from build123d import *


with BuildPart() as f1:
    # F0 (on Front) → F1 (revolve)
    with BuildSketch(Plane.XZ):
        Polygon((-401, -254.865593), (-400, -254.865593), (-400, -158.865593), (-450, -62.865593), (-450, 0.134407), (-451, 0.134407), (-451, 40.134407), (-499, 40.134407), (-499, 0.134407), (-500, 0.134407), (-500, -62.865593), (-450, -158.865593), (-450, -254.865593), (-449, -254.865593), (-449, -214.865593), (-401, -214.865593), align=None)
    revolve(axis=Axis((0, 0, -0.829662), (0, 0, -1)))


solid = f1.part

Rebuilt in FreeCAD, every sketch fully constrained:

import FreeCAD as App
import Part
import Sketcher

V = App.Vector
Q = App.Units.Quantity


def add_polygon(sketch, points):
    """Adds a closed chain of lines whose ends are joined by coincident constraints."""
    first, n = sketch.GeometryCount, len(points)
    for a, b in zip(points, points[1:] + points[:1]):
        sketch.addGeometry(Part.LineSegment(App.Vector(*a, 0), App.Vector(*b, 0)), False)
    for i in range(n):
        sketch.addConstraint(Sketcher.Constraint("Coincident", first + i, 2, first + (i + 1) % n, 1))

doc = App.newDocument("Part")
params = doc.addObject("Spreadsheet::Sheet", "Params")
for row, (alias, value) in enumerate([
    ("sketch1_width", "1 mm"),
    ("sketch1_width2", "48 mm"),
    ("sketch1_height", "96 mm"),
    ("sketch1_height2", "63 mm"),
    ("sketch1_height3", "40 mm"),
    ("revolution_angle", "360 deg"),
], start=1):
    params.set(f"A{row}", alias)
    params.set(f"B{row}", "=" + value)
    params.setAlias(f"B{row}", alias)

body = doc.addObject("PartDesign::Body", "Body")

# Sketch on XZ plane
sketch1 = body.newObject("Sketcher::SketchObject", "Sketch")
sketch1.AttachmentSupport = (doc.getObject("XZ_Plane"), [""])
sketch1.MapMode = "FlatFace"
add_polygon(sketch1, [(-401, -254.9), (-400, -254.9), (-400, -158.9), (-450, -62.9), (-450, 0.1), (-451, 0.1), (-451, 40.1), (-499, 40.1), (-499, 0.1), (-500, 0.1), (-500, -62.9), (-450, -158.9), (-450, -254.9), (-449, -254.9), (-449, -214.9), (-401, -214.9)])  # lines 0-15
sketch1.addConstraint(Sketcher.Constraint("Horizontal", 0))
sketch1.addConstraint(Sketcher.Constraint("Vertical", 1))
sketch1.addConstraint(Sketcher.Constraint("Vertical", 3))
sketch1.addConstraint(Sketcher.Constraint("Horizontal", 4))
sketch1.addConstraint(Sketcher.Constraint("Vertical", 5))
sketch1.addConstraint(Sketcher.Constraint("Horizontal", 6))
sketch1.addConstraint(Sketcher.Constraint("Vertical", 7))
sketch1.addConstraint(Sketcher.Constraint("Horizontal", 8))
sketch1.addConstraint(Sketcher.Constraint("Vertical", 9))
sketch1.addConstraint(Sketcher.Constraint("Vertical", 11))
sketch1.addConstraint(Sketcher.Constraint("Horizontal", 12))
sketch1.addConstraint(Sketcher.Constraint("Vertical", 13))
sketch1.addConstraint(Sketcher.Constraint("Horizontal", 14))
sketch1.addConstraint(Sketcher.Constraint("Vertical", 15))
sketch1.addConstraint(Sketcher.Constraint("Parallel", 2, 10))
sketch1.addConstraint(Sketcher.Constraint("Horizontal", 4, 2, 7, 2))
sketch1.addConstraint(Sketcher.Constraint("Horizontal", 2, 2, 9, 2))
sketch1.addConstraint(Sketcher.Constraint("Horizontal", 1, 2, 10, 2))
sketch1.addConstraint(Sketcher.Constraint("Horizontal", 0, 2, 11, 2))
sketch1.addConstraint(Sketcher.Constraint("Vertical", 3, 2, 10, 2))
sketch1.addConstraint(Sketcher.Constraint("Equal", 0, 4))
sketch1.addConstraint(Sketcher.Constraint("Equal", 4, 8))
sketch1.addConstraint(Sketcher.Constraint("Equal", 8, 12))
sketch1.addConstraint(Sketcher.Constraint("Equal", 7, 13))
sketch1.addConstraint(Sketcher.Constraint("DistanceX", 0, 1, 0, 2, Q("1 mm")))
sketch1.addConstraint(Sketcher.Constraint("DistanceX", 6, 2, 6, 1, Q("48 mm")))
sketch1.addConstraint(Sketcher.Constraint("DistanceY", 1, 1, 1, 2, Q("96 mm")))
sketch1.addConstraint(Sketcher.Constraint("DistanceY", 3, 1, 3, 2, Q("63 mm")))
sketch1.addConstraint(Sketcher.Constraint("DistanceY", 5, 1, 5, 2, Q("40 mm")))
sketch1.addConstraint(Sketcher.Constraint("DistanceX", 0, 2, -1, 1, Q("400 mm")))
sketch1.addConstraint(Sketcher.Constraint("DistanceY", 1, 2, 2, 2, Q("96 mm")))
sketch1.addConstraint(Sketcher.Constraint("DistanceY", 0, 2, -1, 1, Q("254.865593 mm")))
sketch1.setExpression("Constraints[40]", "Params.sketch1_width")
sketch1.setExpression("Constraints[41]", "Params.sketch1_width2")
sketch1.setExpression("Constraints[42]", "Params.sketch1_height")
sketch1.setExpression("Constraints[43]", "Params.sketch1_height2")
sketch1.setExpression("Constraints[44]", "Params.sketch1_height3")
revolution = body.newObject("PartDesign::Revolution", "Revolution")
revolution.Profile = sketch1
revolution.ReferenceAxis = (sketch1, ["V_Axis"])
revolution.setExpression("Angle", "Params.revolution_angle")

doc.recompute()
